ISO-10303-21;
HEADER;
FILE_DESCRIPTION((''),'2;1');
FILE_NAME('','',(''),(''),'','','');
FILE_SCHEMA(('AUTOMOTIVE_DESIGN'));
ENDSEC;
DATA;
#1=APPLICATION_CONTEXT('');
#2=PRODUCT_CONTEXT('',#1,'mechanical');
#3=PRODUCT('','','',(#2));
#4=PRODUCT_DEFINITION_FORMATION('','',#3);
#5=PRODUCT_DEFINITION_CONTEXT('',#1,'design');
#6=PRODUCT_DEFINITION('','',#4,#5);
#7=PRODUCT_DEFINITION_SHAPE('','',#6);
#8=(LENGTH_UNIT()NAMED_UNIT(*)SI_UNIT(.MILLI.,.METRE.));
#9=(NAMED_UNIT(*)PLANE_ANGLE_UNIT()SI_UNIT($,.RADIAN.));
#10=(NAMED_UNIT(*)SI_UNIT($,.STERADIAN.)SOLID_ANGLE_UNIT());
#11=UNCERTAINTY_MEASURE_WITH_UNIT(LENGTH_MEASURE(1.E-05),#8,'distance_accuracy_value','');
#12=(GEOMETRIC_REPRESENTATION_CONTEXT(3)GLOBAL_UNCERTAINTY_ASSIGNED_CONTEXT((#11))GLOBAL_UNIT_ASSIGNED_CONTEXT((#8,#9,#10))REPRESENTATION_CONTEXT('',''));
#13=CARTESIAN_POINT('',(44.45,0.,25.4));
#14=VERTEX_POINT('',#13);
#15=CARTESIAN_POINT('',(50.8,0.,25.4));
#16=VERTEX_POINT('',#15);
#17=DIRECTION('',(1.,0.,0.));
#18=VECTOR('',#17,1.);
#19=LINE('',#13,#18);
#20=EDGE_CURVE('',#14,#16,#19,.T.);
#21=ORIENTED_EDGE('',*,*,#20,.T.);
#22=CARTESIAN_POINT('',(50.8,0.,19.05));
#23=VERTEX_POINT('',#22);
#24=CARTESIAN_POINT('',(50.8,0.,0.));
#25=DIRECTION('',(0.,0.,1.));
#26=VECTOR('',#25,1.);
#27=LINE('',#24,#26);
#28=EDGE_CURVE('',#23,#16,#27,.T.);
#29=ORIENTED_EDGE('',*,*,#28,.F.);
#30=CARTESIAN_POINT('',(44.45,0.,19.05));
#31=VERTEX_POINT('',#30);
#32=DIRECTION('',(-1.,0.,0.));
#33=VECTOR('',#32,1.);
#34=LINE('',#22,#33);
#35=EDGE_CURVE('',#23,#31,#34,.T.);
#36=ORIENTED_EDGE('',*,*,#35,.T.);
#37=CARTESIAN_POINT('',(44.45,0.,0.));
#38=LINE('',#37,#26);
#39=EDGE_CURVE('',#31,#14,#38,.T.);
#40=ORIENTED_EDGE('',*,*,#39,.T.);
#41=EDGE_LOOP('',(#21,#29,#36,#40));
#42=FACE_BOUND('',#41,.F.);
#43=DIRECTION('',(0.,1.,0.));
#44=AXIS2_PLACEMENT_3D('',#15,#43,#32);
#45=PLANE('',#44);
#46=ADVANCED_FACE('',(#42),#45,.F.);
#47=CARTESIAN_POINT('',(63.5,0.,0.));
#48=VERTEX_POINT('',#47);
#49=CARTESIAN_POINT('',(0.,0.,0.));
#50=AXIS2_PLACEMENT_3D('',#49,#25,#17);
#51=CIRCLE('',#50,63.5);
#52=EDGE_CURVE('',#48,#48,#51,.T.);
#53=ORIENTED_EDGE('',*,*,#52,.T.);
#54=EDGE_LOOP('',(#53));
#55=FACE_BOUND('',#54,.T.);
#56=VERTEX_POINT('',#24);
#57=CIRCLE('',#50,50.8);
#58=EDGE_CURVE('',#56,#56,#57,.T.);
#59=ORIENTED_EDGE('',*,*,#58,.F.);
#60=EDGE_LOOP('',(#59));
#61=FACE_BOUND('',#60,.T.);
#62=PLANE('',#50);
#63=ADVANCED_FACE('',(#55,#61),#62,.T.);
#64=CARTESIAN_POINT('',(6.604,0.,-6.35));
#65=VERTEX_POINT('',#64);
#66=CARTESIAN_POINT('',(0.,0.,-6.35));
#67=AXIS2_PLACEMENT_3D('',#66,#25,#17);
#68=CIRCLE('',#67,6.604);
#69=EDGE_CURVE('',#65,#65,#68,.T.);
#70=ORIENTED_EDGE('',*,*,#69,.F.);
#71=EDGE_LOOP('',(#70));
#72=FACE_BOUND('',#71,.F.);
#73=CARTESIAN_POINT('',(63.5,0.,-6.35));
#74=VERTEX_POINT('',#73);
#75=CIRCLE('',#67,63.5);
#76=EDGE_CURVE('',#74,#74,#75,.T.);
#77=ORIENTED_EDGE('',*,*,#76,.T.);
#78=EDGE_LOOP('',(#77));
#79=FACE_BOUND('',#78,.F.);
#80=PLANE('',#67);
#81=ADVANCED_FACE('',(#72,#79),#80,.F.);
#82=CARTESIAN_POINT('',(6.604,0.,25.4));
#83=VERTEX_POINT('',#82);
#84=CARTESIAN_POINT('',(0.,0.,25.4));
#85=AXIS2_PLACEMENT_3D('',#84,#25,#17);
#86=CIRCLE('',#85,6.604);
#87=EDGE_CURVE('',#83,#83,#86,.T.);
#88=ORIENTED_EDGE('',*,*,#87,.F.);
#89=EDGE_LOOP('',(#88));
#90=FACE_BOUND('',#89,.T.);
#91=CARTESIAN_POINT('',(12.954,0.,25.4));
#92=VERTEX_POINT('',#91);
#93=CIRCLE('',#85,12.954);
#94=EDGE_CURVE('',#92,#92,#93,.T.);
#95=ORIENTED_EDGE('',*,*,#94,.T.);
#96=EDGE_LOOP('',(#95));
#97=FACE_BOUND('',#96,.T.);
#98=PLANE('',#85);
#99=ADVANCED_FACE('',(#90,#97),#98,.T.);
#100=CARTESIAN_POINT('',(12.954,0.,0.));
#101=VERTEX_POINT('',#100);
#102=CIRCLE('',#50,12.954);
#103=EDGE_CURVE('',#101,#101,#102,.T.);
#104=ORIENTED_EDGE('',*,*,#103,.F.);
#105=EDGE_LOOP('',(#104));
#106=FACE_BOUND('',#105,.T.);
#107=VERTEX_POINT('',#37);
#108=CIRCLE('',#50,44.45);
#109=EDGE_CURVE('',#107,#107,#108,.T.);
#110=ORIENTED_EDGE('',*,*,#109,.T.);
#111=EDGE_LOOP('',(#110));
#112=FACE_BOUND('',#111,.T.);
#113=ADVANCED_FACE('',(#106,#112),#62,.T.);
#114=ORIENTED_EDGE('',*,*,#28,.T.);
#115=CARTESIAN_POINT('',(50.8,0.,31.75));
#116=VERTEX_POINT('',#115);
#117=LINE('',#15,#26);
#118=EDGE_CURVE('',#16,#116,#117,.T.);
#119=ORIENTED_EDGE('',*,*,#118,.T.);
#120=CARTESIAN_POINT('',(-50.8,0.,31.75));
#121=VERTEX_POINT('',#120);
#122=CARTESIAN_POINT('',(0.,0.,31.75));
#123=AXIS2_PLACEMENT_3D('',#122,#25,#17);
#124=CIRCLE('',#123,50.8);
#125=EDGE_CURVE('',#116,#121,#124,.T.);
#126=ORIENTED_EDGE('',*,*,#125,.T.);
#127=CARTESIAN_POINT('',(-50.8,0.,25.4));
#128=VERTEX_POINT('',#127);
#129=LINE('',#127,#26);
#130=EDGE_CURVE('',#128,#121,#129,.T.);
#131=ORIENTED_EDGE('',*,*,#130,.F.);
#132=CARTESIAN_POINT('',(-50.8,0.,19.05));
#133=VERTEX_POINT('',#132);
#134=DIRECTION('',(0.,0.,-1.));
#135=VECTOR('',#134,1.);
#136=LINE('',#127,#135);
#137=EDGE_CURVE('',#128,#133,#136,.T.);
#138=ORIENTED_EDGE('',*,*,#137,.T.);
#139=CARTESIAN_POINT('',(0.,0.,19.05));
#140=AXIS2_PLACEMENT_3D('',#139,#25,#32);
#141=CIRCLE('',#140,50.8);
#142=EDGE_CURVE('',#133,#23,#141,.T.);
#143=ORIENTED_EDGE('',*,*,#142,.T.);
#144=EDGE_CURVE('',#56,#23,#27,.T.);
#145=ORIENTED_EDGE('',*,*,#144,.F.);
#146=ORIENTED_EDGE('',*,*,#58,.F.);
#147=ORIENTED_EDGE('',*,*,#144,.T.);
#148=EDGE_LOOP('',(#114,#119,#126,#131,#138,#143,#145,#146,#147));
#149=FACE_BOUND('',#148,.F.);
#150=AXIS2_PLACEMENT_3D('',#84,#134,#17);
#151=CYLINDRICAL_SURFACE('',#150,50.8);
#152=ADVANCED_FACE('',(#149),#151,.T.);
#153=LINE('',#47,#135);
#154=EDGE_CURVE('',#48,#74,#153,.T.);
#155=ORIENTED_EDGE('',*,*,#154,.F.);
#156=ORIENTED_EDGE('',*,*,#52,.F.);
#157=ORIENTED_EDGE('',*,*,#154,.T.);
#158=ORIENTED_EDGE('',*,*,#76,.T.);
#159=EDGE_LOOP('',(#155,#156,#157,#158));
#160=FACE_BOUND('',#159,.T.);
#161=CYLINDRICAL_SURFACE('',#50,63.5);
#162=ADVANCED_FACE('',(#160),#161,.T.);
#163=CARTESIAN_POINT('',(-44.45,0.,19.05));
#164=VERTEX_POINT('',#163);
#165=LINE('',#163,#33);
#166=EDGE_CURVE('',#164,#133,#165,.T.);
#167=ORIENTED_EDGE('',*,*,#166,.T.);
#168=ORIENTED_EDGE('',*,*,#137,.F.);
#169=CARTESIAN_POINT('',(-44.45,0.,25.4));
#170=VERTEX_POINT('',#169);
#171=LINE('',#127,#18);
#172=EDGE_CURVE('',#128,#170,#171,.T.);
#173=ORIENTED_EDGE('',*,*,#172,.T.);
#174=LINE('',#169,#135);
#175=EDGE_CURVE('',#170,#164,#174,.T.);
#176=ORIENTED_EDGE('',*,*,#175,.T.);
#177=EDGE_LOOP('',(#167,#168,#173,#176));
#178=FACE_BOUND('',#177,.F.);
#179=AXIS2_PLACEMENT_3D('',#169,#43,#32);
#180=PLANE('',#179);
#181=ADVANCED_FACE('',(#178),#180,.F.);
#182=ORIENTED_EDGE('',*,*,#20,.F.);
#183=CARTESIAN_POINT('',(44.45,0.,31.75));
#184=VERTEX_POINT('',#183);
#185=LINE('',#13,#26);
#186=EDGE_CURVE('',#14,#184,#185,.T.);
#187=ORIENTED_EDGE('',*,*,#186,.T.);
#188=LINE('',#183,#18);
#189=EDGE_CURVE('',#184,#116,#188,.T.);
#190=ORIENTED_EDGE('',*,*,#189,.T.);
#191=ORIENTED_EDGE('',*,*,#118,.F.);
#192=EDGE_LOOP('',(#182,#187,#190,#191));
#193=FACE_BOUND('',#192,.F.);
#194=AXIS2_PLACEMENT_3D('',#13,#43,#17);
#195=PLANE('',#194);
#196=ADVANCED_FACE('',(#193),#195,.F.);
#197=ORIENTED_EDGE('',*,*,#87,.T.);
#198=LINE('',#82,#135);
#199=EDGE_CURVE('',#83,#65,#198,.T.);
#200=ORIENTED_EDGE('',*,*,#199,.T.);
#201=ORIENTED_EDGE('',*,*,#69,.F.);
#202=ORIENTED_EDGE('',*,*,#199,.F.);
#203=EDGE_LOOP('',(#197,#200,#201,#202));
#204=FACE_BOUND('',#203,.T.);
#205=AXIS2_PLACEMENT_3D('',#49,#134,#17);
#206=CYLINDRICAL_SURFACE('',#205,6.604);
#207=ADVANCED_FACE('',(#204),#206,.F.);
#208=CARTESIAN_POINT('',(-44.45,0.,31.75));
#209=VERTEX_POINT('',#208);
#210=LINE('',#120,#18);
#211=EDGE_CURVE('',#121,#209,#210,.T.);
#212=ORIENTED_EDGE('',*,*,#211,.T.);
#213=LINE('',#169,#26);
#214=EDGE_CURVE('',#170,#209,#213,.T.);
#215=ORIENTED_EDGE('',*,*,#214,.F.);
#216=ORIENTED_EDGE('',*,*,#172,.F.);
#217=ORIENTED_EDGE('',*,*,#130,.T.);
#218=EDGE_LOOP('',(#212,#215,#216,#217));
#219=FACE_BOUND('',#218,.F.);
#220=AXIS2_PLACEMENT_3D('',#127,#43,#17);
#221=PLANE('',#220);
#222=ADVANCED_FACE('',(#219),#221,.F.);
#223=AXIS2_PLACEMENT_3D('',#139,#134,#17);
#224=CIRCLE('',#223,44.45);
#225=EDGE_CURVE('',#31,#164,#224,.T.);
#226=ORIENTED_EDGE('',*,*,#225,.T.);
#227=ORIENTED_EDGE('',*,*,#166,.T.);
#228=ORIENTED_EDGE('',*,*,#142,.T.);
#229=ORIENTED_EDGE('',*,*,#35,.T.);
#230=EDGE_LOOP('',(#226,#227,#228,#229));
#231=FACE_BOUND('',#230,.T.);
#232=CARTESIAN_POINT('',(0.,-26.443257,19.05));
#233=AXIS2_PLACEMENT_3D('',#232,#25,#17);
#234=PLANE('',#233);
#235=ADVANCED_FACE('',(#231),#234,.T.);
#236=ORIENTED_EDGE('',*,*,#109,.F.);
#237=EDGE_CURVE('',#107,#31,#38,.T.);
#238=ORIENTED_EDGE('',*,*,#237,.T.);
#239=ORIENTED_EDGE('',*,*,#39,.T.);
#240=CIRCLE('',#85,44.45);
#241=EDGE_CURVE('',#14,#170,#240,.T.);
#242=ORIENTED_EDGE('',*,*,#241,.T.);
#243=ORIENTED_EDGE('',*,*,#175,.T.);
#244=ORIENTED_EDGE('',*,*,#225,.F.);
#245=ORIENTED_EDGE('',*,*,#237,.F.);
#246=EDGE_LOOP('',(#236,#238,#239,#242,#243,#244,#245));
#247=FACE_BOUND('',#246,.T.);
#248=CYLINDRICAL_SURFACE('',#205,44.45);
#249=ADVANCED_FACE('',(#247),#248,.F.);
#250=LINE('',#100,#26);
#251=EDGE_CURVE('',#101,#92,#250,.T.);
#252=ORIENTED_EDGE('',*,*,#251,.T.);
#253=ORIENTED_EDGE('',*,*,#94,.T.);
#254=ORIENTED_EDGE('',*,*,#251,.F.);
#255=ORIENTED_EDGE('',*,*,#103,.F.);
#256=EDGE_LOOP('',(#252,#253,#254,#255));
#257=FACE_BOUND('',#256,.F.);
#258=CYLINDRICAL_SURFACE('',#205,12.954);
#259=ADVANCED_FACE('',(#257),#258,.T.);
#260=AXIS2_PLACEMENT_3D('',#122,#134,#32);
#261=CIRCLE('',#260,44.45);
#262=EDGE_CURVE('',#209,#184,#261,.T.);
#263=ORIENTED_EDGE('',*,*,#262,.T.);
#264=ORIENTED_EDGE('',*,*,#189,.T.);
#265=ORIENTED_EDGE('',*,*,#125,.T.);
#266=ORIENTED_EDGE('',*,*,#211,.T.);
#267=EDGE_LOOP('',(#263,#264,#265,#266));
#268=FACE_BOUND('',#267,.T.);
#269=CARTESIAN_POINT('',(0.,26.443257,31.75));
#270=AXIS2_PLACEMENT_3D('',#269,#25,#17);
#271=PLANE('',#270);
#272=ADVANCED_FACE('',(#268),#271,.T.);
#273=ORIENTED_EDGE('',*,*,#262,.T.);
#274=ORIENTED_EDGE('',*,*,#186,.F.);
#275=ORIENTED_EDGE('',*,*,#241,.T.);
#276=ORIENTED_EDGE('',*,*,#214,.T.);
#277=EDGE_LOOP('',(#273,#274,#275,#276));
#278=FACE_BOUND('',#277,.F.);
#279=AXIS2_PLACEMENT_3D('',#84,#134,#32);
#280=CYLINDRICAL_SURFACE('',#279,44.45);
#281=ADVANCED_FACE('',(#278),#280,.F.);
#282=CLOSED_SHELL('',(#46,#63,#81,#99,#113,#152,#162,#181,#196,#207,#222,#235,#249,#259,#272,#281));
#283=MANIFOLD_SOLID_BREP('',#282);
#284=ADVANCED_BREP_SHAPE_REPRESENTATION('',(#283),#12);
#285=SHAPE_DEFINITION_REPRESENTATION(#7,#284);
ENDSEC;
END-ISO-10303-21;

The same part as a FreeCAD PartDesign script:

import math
import FreeCAD as App
import Part
import Sketcher
from FreeCAD import Vector
Q = App.Units.Quantity

doc = App.newDocument("Part")
body = doc.addObject("PartDesign::Body", "Body")

# Sketch on XY plane
sketch1 = body.newObject("Sketcher::SketchObject", "Sketch")
sketch1.AttachmentSupport = (doc.getObject("XY_Plane"), [""])
sketch1.MapMode = "FlatFace"
sketch1.addGeometry(Part.Circle(Vector(0, 0, 0), Vector(0, 0, 1), 64), False)
sketch1.addGeometry(Part.Circle(Vector(0, 0, 0), Vector(0, 0, 1), 7), False)
sketch1.addConstraint(Sketcher.Constraint("Coincident", 0, 3, -1, 1))
sketch1.addConstraint(Sketcher.Constraint("Coincident", 1, 3, -1, 1))
sketch1.addConstraint(Sketcher.Constraint("Diameter", 0, Q("5 in")))
sketch1.addConstraint(Sketcher.Constraint("Diameter", 1, Q("0.52 in")))
pad1 = body.newObject("PartDesign::Pad", "Pad")
pad1.Profile = sketch1
pad1.Length = Q("0.25 in")
pad1.Reversed = True

# Sketch on XY plane
sketch2 = body.newObject("Sketcher::SketchObject", "Sketch001")
sketch2.AttachmentSupport = (doc.getObject("XY_Plane"), [""])
sketch2.MapMode = "FlatFace"
sketch2.addGeometry(Part.Circle(Vector(0, 0, 0), Vector(0, 0, 1), 51), False)
sketch2.addGeometry(Part.Circle(Vector(0, 0, 0), Vector(0, 0, 1), 44), False)
sketch2.addGeometry(Part.Circle(Vector(0, 0, 0), Vector(0, 0, 1), 13), False)
sketch2.addGeometry(Part.Circle(Vector(0, 0, 0), Vector(0, 0, 1), 7), False)
sketch2.addConstraint(Sketcher.Constraint("Coincident", 0, 3, -1, 1))
sketch2.addConstraint(Sketcher.Constraint("Coincident", 1, 3, -1, 1))
sketch2.addConstraint(Sketcher.Constraint("Coincident", 2, 3, -1, 1))
sketch2.addConstraint(Sketcher.Constraint("Coincident", 3, 3, -1, 1))
sketch2.addConstraint(Sketcher.Constraint("Diameter", 0, Q("4 in")))
sketch2.addConstraint(Sketcher.Constraint("Diameter", 1, Q("3.5 in")))
sketch2.addConstraint(Sketcher.Constraint("Diameter", 2, Q("1.02 in")))
sketch2.addConstraint(Sketcher.Constraint("Diameter", 3, Q("0.52 in")))
pad2 = body.newObject("PartDesign::Pad", "Pad001")
pad2.Profile = sketch2
pad2.Length = Q("1 in")

# Sketch on XY plane
sketch3 = body.newObject("Sketcher::SketchObject", "Sketch002")
sketch3.AttachmentSupport = (doc.getObject("XY_Plane"), [""])
sketch3.MapMode = "FlatFace"
sketch3.AttachmentOffset = App.Placement(Vector(0, 0, 1 * 25.4), App.Rotation())
sketch3.addGeometry(Part.ArcOfCircle(Part.Circle(Vector(0, 0, 0), Vector(0, 0, 1), 51), math.radians(0), math.radians(180)), False)
sketch3.addGeometry(Part.LineSegment(Vector(-51, 0, 0), Vector(-44, 0, 0)), False)
sketch3.addGeometry(Part.ArcOfCircle(Part.Circle(Vector(0, 0, 0), Vector(0, 0, 1), 44), math.radians(0), math.radians(180)), False)
sketch3.addGeometry(Part.LineSegment(Vector(44, 0, 0), Vector(51, 0, 0)), False)
sketch3.addConstraint(Sketcher.Constraint("Coincident", 0, 2, 1, 1))
sketch3.addConstraint(Sketcher.Constraint("Coincident", 1, 2, 2, 2))
sketch3.addConstraint(Sketcher.Constraint("Coincident", 2, 1, 3, 1))
sketch3.addConstraint(Sketcher.Constraint("Coincident", 3, 2, 0, 1))
sketch3.addConstraint(Sketcher.Constraint("Horizontal", 1))
sketch3.addConstraint(Sketcher.Constraint("Horizontal", 3))
sketch3.addConstraint(Sketcher.Constraint("Coincident", 0, 3, -1, 1))
sketch3.addConstraint(Sketcher.Constraint("Coincident", 2, 3, -1, 1))
sketch3.addConstraint(Sketcher.Constraint("PointOnObject", 0, 2, -1))
sketch3.addConstraint(Sketcher.Constraint("PointOnObject", 2, 1, -1))
sketch3.addConstraint(Sketcher.Constraint("Radius", 0, Q("2 in")))
sketch3.addConstraint(Sketcher.Constraint("Radius", 2, Q("1.75 in")))
pad3 = body.newObject("PartDesign::Pad", "Pad002")
pad3.Profile = sketch3
pad3.Length = Q("0.25 in")

# Sketch on XY plane
sketch4 = body.newObject("Sketcher::SketchObject", "Sketch003")
sketch4.AttachmentSupport = (doc.getObject("XY_Plane"), [""])
sketch4.MapMode = "FlatFace"
sketch4.AttachmentOffset = App.Placement(Vector(0, 0, 1 * 25.4), App.Rotation())
sketch4.addGeometry(Part.ArcOfCircle(Part.Circle(Vector(0, 0, 0), Vector(0, 0, 1), 51), math.radians(180), math.radians(360)), False)
sketch4.addGeometry(Part.LineSegment(Vector(51, 0, 0), Vector(44, 0, 0)), False)
sketch4.addGeometry(Part.ArcOfCircle(Part.Circle(Vector(0, 0, 0), Vector(0, 0, 1), 44), math.radians(180), math.radians(360)), False)
sketch4.addGeometry(Part.LineSegment(Vector(-44, 0, 0), Vector(-51, 0, 0)), False)
sketch4.addConstraint(Sketcher.Constraint("Coincident", 0, 2, 1, 1))
sketch4.addConstraint(Sketcher.Constraint("Coincident", 1, 2, 2, 2))
sketch4.addConstraint(Sketcher.Constraint("Coincident", 2, 1, 3, 1))
sketch4.addConstraint(Sketcher.Constraint("Coincident", 3, 2, 0, 1))
sketch4.addConstraint(Sketcher.Constraint("Horizontal", 1))
sketch4.addConstraint(Sketcher.Constraint("Horizontal", 3))
sketch4.addConstraint(Sketcher.Constraint("Coincident", 0, 3, -1, 1))
sketch4.addConstraint(Sketcher.Constraint("Coincident", 2, 3, -1, 1))
sketch4.addConstraint(Sketcher.Constraint("PointOnObject", 0, 2, -1))
sketch4.addConstraint(Sketcher.Constraint("PointOnObject", 2, 1, -1))
sketch4.addConstraint(Sketcher.Constraint("Radius", 0, Q("2 in")))
sketch4.addConstraint(Sketcher.Constraint("Radius", 2, Q("1.75 in")))
pocket1 = body.newObject("PartDesign::Pocket", "Pocket")
pocket1.Profile = sketch4
pocket1.Length = Q("0.25 in")

doc.recompute()
